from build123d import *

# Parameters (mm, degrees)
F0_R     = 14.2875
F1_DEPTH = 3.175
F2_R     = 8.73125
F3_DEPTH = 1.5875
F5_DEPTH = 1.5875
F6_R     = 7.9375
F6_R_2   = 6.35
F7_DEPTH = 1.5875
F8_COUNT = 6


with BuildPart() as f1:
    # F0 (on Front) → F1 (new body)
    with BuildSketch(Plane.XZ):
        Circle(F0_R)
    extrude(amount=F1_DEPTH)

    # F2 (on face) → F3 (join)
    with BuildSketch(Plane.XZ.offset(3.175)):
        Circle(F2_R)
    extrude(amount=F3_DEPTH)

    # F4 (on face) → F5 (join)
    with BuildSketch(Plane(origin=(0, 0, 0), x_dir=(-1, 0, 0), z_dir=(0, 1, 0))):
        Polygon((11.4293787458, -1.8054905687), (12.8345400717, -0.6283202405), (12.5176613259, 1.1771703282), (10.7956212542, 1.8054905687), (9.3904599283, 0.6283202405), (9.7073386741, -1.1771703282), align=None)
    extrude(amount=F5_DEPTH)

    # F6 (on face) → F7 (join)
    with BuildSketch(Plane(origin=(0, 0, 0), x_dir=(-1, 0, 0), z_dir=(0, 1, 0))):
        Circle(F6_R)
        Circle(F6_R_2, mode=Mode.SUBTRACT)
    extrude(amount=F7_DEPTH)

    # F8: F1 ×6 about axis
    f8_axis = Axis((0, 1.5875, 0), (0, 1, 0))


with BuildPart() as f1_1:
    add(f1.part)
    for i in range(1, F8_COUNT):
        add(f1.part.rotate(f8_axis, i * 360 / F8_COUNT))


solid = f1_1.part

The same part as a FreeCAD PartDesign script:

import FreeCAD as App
import Part
import Sketcher
Q = App.Units.Quantity


def add_polygon(sketch, points):
    """Adds a closed chain of lines whose ends are joined by coincident constraints."""
    first, n = sketch.GeometryCount, len(points)
    for a, b in zip(points, points[1:] + points[:1]):
        sketch.addGeometry(Part.LineSegment(App.Vector(*a, 0), App.Vector(*b, 0)), False)
    for i in range(n):
        sketch.addConstraint(Sketcher.Constraint("Coincident", first + i, 2, first + (i + 1) % n, 1))

doc = App.newDocument("Part")
params = doc.addObject("Spreadsheet::Sheet", "Params")
for row, (alias, value) in enumerate([
    ("sketch1_diameter", "1.125 in"),
    ("pad1_length", "0.125 in"),
    ("sketch2_diameter", "0.6875 in"),
    ("pad2_length", "0.0625 in"),
    ("pad3_length", "0.0625 in"),
    ("sketch4_diameter", "0.5 in"),
    ("sketch4_diameter2", "0.625 in"),
    ("pad4_length", "0.0625 in"),
], start=1):
    params.set(f"A{row}", alias)
    params.set(f"B{row}", "=" + value)
    params.setAlias(f"B{row}", alias)

body = doc.addObject("PartDesign::Body", "Body")

sketch1 = body.newObject("Sketcher::SketchObject", "Sketch")
sketch1.AttachmentSupport = (doc.getObject("XZ_Plane"), [""])
sketch1.MapMode = "FlatFace"
sketch1.addGeometry(Part.Circle(App.Vector(0, 0, 0), App.Vector(0, 0, 1), 14), False)
sketch1.addConstraint([
    Sketcher.Constraint("Coincident", 0, 3, -1, 1),
    Sketcher.Constraint("Diameter", 0, Q("1.125 in")),
])
sketch1.setExpression("Constraints[1]", "Params.sketch1_diameter")
pad1 = body.newObject("PartDesign::Pad", "Pad")
pad1.Profile = sketch1
pad1.setExpression("Length", "Params.pad1_length")

sketch2 = body.newObject("Sketcher::SketchObject", "Sketch001")
sketch2.AttachmentSupport = (doc.getObject("XZ_Plane"), [""])
sketch2.MapMode = "FlatFace"
sketch2.AttachmentOffset = App.Placement(App.Vector(0, 0, 0.125 * 25.4), App.Rotation())
sketch2.addGeometry(Part.Circle(App.Vector(0, 0, 0), App.Vector(0, 0, 1), 9), False)
sketch2.addConstraint([
    Sketcher.Constraint("Coincident", 0, 3, -1, 1),
    Sketcher.Constraint("Diameter", 0, Q("0.6875 in")),
])
sketch2.setExpression("Constraints[1]", "Params.sketch2_diameter")
pad2 = body.newObject("PartDesign::Pad", "Pad001")
pad2.Profile = sketch2
pad2.setExpression("Length", "Params.pad2_length")

sketch3 = body.newObject("Sketcher::SketchObject", "Sketch002")
sketch3.AttachmentSupport = (doc.getObject("XZ_Plane"), [""])
sketch3.MapMode = "FlatFace"
add_polygon(sketch3, [(-11.4, -1.8), (-12.8, -0.6), (-12.5, 1.2), (-10.8, 1.8), (-9.4, 0.6), (-9.7, -1.2)])
sketch3.addConstraint([
    Sketcher.Constraint("Parallel", 0, 3),
    Sketcher.Constraint("Parallel", 1, 4),
    Sketcher.Constraint("Parallel", 2, 5),
    Sketcher.Constraint("Equal", 0, 1),
    Sketcher.Constraint("Equal", 1, 2),
    Sketcher.Constraint("Equal", 2, 3),
    Sketcher.Constraint("DistanceX", 1, 2, 3, 2, 3.127201),
    Sketcher.Constraint("DistanceX", 0, 2, -1, 1, 12.83454),
    Sketcher.Constraint("DistanceY", 0, 2, -1, 1, 0.62832),
    Sketcher.Constraint("DistanceX", 1, 2, -1, 1, 12.517661),
    Sketcher.Constraint("DistanceY", -1, 1, 1, 2, 1.17717),
    Sketcher.Constraint("DistanceX", 2, 2, -1, 1, 10.795621),
])
pad3 = body.newObject("PartDesign::Pad", "Pad002")
pad3.Profile = sketch3
pad3.setExpression("Length", "Params.pad3_length")
pad3.Reversed = True

sketch4 = body.newObject("Sketcher::SketchObject", "Sketch003")
sketch4.AttachmentSupport = (doc.getObject("XZ_Plane"), [""])
sketch4.MapMode = "FlatFace"
sketch4.addGeometry([
    Part.Circle(App.Vector(0, 0, 0), App.Vector(0, 0, 1), 8),
    Part.Circle(App.Vector(0, 0, 0), App.Vector(0, 0, 1), 6),
], False)
sketch4.addConstraint([
    Sketcher.Constraint("Coincident", 0, 3, -1, 1),
    Sketcher.Constraint("Coincident", 1, 3, -1, 1),
    Sketcher.Constraint("Diameter", 1, Q("0.5 in")),
    Sketcher.Constraint("Diameter", 0, Q("0.625 in")),
])
sketch4.setExpression("Constraints[2]", "Params.sketch4_diameter")
sketch4.setExpression("Constraints[3]", "Params.sketch4_diameter2")
pad4 = body.newObject("PartDesign::Pad", "Pad003")
pad4.Profile = sketch4
pad4.setExpression("Length", "Params.pad4_length")
pad4.Reversed = True
body2 = doc.addObject("PartDesign::Body", "Body001")
doc.recompute()

body2.BaseFeature = body
doc.recompute()

body3 = doc.addObject("PartDesign::Body", "Body002")
body3.BaseFeature = body
body3.Placement = App.Placement(App.Vector(0, 0, 0), App.Rotation(App.Vector(0, 1, 0), 60))
boolean = body2.newObject("PartDesign::Boolean", "Boolean")
boolean.Type = "Fuse"
boolean.addObjects([body3])
doc.recompute()

body4 = doc.addObject("PartDesign::Body", "Body003")
body4.BaseFeature = body
body4.Placement = App.Placement(App.Vector(0, 0, 0), App.Rotation(App.Vector(0, 1, 0), 120))
boolean2 = body2.newObject("PartDesign::Boolean", "Boolean001")
boolean2.Type = "Fuse"
boolean2.addObjects([body4])
doc.recompute()

body5 = doc.addObject("PartDesign::Body", "Body004")
body5.BaseFeature = body
body5.Placement = App.Placement(App.Vector(0, 0, 0), App.Rotation(App.Vector(0, 1, 0), 180))
boolean3 = body2.newObject("PartDesign::Boolean", "Boolean002")
boolean3.Type = "Fuse"
boolean3.addObjects([body5])
doc.recompute()

body6 = doc.addObject("PartDesign::Body", "Body005")
body6.BaseFeature = body
body6.Placement = App.Placement(App.Vector(0, 0, 0), App.Rotation(App.Vector(0, 1, 0), 240))
boolean4 = body2.newObject("PartDesign::Boolean", "Boolean003")
boolean4.Type = "Fuse"
boolean4.addObjects([body6])
doc.recompute()

body.Placement = App.Placement(App.Vector(0, 0, 0), App.Rotation(App.Vector(0, 1, 0), 300))
boolean5 = body2.newObject("PartDesign::Boolean", "Boolean004")
boolean5.Type = "Fuse"
boolean5.addObjects([body])

doc.recompute()
